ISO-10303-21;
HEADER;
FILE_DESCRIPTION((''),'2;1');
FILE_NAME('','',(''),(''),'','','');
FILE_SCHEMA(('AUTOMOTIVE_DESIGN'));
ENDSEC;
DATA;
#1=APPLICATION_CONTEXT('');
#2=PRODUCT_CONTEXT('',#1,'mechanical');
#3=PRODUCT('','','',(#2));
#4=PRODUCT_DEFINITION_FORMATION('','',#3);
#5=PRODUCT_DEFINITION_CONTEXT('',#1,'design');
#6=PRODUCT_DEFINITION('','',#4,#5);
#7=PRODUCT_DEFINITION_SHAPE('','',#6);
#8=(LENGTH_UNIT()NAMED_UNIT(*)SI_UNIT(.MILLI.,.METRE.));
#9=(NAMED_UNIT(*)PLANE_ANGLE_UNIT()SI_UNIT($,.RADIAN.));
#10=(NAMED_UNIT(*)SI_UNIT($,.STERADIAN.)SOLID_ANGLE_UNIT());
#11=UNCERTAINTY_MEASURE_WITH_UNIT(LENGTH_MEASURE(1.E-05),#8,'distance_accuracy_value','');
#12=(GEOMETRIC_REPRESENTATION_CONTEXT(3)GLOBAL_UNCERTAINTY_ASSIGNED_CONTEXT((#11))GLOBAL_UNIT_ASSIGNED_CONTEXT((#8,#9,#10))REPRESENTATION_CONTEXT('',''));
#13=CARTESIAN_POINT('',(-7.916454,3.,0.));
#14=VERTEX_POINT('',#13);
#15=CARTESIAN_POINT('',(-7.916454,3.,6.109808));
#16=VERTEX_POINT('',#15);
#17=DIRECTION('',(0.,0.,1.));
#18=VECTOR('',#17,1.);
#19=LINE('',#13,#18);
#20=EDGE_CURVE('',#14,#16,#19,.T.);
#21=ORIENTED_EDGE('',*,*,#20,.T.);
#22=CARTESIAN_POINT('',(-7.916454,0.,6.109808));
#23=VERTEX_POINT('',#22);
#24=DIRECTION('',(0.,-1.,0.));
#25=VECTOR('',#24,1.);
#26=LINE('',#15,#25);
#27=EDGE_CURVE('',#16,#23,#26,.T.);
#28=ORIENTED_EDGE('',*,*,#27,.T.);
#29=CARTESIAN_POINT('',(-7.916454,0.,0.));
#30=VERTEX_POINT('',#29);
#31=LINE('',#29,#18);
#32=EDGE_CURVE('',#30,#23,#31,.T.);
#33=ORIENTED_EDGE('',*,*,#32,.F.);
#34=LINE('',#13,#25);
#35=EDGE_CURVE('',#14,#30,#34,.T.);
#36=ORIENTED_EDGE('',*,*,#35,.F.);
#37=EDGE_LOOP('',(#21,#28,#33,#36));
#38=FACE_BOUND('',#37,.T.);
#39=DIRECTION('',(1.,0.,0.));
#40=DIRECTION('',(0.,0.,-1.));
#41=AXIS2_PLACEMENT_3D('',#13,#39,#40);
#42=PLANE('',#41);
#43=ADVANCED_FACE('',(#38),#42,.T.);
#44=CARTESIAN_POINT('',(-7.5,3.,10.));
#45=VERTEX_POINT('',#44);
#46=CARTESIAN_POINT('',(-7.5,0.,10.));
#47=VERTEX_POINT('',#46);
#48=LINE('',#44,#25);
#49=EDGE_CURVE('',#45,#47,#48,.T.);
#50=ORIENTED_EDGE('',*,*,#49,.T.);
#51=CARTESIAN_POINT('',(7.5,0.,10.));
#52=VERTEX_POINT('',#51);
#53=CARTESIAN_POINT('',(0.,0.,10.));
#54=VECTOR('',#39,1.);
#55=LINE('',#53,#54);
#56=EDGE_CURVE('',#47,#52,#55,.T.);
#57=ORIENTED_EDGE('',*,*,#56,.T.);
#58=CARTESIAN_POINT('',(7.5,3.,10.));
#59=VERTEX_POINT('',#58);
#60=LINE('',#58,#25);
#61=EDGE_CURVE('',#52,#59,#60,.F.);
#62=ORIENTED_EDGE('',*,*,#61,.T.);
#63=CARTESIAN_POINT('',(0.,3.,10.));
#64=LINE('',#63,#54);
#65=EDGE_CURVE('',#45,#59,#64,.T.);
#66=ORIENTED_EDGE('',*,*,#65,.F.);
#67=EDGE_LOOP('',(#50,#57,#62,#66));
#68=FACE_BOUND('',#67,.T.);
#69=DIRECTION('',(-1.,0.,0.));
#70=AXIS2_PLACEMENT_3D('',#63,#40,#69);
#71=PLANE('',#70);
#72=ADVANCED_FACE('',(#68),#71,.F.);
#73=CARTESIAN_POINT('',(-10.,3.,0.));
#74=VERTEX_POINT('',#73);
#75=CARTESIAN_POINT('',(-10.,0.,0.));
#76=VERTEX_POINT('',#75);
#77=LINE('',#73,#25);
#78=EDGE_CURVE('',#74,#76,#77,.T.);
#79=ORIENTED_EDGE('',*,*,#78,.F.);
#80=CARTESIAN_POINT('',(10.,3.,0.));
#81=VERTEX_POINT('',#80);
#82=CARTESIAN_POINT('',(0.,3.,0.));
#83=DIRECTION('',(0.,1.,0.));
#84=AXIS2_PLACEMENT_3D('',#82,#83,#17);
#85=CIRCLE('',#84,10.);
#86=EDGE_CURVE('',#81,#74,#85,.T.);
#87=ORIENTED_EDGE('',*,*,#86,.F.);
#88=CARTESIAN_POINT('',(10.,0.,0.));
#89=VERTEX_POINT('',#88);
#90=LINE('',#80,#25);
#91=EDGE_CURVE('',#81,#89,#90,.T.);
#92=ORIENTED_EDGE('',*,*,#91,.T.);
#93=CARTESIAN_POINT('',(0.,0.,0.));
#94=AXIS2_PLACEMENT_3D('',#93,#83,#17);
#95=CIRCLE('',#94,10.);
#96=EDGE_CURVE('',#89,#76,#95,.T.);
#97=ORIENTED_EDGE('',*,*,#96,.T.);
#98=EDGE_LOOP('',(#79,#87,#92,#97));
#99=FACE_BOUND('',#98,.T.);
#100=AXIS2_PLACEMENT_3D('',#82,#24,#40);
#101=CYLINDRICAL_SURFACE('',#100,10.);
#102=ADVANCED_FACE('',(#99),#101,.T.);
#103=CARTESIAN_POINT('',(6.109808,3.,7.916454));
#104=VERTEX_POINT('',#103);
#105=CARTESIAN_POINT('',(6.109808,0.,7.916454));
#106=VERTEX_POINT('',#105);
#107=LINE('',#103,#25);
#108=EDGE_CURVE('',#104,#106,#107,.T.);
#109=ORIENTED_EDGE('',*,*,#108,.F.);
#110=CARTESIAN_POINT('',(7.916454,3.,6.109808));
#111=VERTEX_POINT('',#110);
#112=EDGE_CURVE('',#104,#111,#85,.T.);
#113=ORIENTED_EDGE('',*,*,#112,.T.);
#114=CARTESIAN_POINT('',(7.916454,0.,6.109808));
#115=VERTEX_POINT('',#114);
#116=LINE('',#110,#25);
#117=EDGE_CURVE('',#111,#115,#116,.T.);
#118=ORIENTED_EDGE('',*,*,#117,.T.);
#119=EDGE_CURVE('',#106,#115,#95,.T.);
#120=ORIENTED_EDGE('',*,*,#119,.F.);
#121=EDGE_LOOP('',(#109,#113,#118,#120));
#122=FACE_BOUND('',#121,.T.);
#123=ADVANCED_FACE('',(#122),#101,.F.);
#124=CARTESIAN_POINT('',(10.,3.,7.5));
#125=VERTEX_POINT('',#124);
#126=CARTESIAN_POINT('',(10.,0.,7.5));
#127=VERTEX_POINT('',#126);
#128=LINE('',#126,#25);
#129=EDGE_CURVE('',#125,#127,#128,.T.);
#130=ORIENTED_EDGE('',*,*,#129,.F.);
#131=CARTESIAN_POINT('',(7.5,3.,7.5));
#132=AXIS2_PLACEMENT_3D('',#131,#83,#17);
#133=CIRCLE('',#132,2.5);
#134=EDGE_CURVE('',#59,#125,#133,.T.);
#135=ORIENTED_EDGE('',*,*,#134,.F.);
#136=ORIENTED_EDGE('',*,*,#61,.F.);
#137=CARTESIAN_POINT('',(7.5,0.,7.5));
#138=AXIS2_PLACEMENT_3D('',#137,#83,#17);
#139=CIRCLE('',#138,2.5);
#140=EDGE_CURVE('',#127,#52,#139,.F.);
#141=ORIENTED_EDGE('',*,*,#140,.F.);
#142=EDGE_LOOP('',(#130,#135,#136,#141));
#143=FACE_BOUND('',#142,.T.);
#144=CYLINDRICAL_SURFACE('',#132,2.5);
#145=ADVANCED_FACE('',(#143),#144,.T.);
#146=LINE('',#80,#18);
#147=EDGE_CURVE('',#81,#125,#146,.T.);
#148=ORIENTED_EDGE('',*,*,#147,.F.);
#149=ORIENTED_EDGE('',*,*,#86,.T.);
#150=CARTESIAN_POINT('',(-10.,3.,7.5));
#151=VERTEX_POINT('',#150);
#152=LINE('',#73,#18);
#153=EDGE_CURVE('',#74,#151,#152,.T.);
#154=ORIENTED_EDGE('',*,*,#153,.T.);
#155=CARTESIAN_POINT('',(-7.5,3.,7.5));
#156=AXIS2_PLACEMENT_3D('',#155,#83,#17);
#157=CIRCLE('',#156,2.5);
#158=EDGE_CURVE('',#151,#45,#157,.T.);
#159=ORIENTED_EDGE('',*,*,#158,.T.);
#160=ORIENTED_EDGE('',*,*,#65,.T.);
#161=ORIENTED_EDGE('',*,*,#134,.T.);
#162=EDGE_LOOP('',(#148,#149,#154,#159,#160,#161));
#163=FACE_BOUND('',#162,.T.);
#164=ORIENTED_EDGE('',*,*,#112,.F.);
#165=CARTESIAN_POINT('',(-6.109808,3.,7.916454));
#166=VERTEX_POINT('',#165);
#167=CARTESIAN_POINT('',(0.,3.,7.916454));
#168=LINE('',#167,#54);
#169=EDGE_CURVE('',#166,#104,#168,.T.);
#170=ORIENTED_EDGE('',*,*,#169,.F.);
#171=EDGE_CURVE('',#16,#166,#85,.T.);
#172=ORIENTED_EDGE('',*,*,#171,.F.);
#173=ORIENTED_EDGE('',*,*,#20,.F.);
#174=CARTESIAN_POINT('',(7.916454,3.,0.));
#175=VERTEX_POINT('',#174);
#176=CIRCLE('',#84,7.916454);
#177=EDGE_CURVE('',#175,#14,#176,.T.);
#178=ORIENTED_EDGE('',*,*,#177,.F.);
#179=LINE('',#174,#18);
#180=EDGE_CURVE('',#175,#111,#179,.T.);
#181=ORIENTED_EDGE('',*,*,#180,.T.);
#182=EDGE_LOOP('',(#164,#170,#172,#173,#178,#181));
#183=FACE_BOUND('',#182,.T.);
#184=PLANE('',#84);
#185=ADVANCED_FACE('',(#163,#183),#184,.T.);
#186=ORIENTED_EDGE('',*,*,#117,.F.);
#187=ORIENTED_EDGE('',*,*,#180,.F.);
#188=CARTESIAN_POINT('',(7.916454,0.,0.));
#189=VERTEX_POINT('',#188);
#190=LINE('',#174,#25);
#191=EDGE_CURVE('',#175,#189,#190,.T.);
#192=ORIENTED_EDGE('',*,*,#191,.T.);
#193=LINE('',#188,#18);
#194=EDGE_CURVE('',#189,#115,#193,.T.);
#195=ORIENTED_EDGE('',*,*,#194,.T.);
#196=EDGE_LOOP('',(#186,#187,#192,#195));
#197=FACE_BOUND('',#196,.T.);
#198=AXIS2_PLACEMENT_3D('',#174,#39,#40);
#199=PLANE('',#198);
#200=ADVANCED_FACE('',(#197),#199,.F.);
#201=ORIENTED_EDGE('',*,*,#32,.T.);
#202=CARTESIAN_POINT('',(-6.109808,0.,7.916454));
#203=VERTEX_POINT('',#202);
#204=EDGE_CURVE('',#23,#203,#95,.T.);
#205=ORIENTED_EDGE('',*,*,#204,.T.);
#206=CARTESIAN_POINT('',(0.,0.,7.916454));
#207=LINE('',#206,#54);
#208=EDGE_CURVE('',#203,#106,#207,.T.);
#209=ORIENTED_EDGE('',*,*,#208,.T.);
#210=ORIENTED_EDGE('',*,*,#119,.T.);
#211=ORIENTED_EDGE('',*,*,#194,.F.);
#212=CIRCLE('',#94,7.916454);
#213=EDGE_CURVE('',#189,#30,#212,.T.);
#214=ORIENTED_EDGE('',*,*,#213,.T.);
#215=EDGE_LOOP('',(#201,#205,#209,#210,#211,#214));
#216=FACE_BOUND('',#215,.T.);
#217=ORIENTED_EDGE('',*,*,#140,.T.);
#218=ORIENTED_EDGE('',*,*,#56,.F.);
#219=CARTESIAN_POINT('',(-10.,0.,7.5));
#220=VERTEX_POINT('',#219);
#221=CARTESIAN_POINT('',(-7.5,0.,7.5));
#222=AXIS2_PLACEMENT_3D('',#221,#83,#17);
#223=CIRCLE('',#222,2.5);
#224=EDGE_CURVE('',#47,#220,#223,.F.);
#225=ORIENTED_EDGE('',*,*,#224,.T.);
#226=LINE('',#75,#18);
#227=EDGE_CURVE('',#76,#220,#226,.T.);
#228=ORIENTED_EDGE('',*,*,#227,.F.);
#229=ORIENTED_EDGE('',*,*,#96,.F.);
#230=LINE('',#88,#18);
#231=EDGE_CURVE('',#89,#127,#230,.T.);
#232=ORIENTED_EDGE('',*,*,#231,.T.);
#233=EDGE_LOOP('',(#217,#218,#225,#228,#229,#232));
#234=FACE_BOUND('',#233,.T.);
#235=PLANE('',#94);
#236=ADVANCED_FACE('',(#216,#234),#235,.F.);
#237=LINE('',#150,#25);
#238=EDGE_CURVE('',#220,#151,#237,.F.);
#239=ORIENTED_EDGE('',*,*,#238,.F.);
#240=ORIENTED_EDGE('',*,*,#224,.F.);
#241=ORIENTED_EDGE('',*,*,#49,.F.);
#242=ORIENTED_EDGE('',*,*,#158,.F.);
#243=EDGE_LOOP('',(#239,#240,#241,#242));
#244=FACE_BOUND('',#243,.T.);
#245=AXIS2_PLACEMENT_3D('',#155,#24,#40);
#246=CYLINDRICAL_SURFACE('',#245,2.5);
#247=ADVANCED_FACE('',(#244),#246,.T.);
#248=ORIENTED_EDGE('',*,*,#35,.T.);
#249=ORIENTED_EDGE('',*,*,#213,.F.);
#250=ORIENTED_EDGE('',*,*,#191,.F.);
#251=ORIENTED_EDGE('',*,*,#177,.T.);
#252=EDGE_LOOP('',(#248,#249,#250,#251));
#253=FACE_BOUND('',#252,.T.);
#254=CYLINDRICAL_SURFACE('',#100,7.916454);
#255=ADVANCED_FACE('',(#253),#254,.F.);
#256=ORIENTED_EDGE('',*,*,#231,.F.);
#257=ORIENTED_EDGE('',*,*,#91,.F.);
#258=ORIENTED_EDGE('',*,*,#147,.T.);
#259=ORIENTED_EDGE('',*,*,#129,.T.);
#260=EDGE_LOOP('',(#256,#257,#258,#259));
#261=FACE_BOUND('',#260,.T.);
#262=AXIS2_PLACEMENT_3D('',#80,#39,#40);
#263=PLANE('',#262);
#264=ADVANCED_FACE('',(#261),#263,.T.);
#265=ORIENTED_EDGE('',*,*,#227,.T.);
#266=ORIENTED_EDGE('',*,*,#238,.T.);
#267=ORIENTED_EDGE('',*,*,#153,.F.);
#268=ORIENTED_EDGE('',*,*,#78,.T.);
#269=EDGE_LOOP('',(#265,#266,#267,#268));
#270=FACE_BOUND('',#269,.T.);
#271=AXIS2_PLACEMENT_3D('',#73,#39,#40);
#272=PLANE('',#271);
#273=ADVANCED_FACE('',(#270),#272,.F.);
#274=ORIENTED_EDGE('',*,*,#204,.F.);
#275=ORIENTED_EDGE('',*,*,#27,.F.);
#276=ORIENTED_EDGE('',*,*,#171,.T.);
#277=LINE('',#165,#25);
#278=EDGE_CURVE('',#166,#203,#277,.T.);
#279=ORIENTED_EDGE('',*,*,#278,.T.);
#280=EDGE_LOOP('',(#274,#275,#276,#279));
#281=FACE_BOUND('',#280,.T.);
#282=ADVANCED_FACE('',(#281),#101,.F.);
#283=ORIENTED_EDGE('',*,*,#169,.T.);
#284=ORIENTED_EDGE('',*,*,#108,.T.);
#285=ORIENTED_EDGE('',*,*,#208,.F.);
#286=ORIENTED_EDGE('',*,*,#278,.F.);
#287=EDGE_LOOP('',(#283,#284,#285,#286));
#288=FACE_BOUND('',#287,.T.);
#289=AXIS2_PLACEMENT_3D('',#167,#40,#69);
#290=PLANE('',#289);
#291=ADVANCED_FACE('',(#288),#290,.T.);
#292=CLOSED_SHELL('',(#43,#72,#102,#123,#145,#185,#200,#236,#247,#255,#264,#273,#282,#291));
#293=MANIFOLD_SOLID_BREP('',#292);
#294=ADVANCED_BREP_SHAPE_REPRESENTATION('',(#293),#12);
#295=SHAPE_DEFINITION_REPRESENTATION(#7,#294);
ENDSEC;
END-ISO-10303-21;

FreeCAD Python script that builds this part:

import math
import FreeCAD as App
import Part
import Sketcher
Q = App.Units.Quantity


def edges_at(feature, points):
    """Names of the edges that pass closest to the given points."""
    edges = feature.Shape.Edges
    near = lambda p: min(range(len(edges)), key=lambda i: edges[i].distToShape(Part.Vertex(*p))[0])
    return sorted({f"Edge{near(p) + 1}" for p in points})

doc = App.newDocument("Part")
body = doc.addObject("PartDesign::Body", "Body")

# Sketch on XZ plane
sketch1 = body.newObject("Sketcher::SketchObject", "Sketch")
sketch1.AttachmentSupport = (doc.getObject("XZ_Plane"), [""])
sketch1.MapMode = "FlatFace"
sketch1.addGeometry([
    Part.LineSegment(App.Vector(10, 10, 0), App.Vector(10, 0, 0)),  # 0
    Part.ArcOfCircle(Part.Circle(App.Vector(0, 0, 0), App.Vector(0, 0, 1), 10), math.radians(180), math.radians(360)),  # 1
    Part.LineSegment(App.Vector(-10, 0, 0), App.Vector(-10, 10, 0)),  # 2
    Part.LineSegment(App.Vector(-10, 10, 0), App.Vector(10, 10, 0)),  # 3
    Part.ArcOfCircle(Part.Circle(App.Vector(0, 0, 0), App.Vector(0, 0, 1), 7.9), math.radians(180), math.radians(360)),  # 4
    Part.LineSegment(App.Vector(7.9, 0, 0), App.Vector(7.9, 6.1, 0)),  # 5
    Part.ArcOfCircle(Part.Circle(App.Vector(0, 0, 0), App.Vector(0, 0, 1), 10), math.radians(37.66), math.radians(52.34)),  # 6
    Part.LineSegment(App.Vector(6.1, 7.9, 0), App.Vector(-6.1, 7.9, 0)),  # 7
    Part.ArcOfCircle(Part.Circle(App.Vector(0, 0, 0), App.Vector(0, 0, 1), 10), math.radians(127.66), math.radians(142.34)),  # 8
    Part.LineSegment(App.Vector(-7.9, 6.1, 0), App.Vector(-7.9, 0, 0)),  # 9
], False)
sketch1.addConstraint([
    Sketcher.Constraint("Tangent", 0, 2, 1, 2),
    Sketcher.Constraint("Tangent", 1, 1, 2, 1),
    Sketcher.Constraint("Coincident", 2, 2, 3, 1),
    Sketcher.Constraint("Coincident", 3, 2, 0, 1),
    Sketcher.Constraint("Tangent", 4, 2, 5, 1),
    Sketcher.Constraint("Coincident", 5, 2, 6, 1),
    Sketcher.Constraint("Coincident", 6, 2, 7, 1),
    Sketcher.Constraint("Coincident", 7, 2, 8, 1),
    Sketcher.Constraint("Coincident", 8, 2, 9, 1),
    Sketcher.Constraint("Tangent", 9, 2, 4, 1),
    Sketcher.Constraint("Vertical", 0),
    Sketcher.Constraint("Vertical", 2),
    Sketcher.Constraint("Horizontal", 3),
    Sketcher.Constraint("Vertical", 5),
    Sketcher.Constraint("Horizontal", 7),
    Sketcher.Constraint("Vertical", 9),
    Sketcher.Constraint("Coincident", 1, 3, -1, 1),
    Sketcher.Constraint("Coincident", 4, 3, -1, 1),
    Sketcher.Constraint("Coincident", 6, 3, -1, 1),
    Sketcher.Constraint("Coincident", 8, 3, -1, 1),
    Sketcher.Constraint("Equal", 1, 6),
    Sketcher.Constraint("Equal", 6, 8),
    Sketcher.Constraint("Radius", 1, Q("10 mm")),
    Sketcher.Constraint("DistanceY", 0, 2, 0, 1, Q("10 mm")),
    Sketcher.Constraint("Radius", 4, Q("7.916454 mm")),
    Sketcher.Constraint("DistanceX", 7, 2, 7, 1, Q("12.219616 mm")),
])
pad1 = body.newObject("PartDesign::Pad", "Pad")
pad1.Profile = sketch1
pad1.Length = 3
pad1.Reversed = True
doc.recompute()

fillet = body.newObject("PartDesign::Fillet", "Fillet")
fillet.Base = (pad1, edges_at(pad1, [(-10, 1.5, 10), (10, 1.5, 10)]))
fillet.Radius = 2.5

doc.recompute()
